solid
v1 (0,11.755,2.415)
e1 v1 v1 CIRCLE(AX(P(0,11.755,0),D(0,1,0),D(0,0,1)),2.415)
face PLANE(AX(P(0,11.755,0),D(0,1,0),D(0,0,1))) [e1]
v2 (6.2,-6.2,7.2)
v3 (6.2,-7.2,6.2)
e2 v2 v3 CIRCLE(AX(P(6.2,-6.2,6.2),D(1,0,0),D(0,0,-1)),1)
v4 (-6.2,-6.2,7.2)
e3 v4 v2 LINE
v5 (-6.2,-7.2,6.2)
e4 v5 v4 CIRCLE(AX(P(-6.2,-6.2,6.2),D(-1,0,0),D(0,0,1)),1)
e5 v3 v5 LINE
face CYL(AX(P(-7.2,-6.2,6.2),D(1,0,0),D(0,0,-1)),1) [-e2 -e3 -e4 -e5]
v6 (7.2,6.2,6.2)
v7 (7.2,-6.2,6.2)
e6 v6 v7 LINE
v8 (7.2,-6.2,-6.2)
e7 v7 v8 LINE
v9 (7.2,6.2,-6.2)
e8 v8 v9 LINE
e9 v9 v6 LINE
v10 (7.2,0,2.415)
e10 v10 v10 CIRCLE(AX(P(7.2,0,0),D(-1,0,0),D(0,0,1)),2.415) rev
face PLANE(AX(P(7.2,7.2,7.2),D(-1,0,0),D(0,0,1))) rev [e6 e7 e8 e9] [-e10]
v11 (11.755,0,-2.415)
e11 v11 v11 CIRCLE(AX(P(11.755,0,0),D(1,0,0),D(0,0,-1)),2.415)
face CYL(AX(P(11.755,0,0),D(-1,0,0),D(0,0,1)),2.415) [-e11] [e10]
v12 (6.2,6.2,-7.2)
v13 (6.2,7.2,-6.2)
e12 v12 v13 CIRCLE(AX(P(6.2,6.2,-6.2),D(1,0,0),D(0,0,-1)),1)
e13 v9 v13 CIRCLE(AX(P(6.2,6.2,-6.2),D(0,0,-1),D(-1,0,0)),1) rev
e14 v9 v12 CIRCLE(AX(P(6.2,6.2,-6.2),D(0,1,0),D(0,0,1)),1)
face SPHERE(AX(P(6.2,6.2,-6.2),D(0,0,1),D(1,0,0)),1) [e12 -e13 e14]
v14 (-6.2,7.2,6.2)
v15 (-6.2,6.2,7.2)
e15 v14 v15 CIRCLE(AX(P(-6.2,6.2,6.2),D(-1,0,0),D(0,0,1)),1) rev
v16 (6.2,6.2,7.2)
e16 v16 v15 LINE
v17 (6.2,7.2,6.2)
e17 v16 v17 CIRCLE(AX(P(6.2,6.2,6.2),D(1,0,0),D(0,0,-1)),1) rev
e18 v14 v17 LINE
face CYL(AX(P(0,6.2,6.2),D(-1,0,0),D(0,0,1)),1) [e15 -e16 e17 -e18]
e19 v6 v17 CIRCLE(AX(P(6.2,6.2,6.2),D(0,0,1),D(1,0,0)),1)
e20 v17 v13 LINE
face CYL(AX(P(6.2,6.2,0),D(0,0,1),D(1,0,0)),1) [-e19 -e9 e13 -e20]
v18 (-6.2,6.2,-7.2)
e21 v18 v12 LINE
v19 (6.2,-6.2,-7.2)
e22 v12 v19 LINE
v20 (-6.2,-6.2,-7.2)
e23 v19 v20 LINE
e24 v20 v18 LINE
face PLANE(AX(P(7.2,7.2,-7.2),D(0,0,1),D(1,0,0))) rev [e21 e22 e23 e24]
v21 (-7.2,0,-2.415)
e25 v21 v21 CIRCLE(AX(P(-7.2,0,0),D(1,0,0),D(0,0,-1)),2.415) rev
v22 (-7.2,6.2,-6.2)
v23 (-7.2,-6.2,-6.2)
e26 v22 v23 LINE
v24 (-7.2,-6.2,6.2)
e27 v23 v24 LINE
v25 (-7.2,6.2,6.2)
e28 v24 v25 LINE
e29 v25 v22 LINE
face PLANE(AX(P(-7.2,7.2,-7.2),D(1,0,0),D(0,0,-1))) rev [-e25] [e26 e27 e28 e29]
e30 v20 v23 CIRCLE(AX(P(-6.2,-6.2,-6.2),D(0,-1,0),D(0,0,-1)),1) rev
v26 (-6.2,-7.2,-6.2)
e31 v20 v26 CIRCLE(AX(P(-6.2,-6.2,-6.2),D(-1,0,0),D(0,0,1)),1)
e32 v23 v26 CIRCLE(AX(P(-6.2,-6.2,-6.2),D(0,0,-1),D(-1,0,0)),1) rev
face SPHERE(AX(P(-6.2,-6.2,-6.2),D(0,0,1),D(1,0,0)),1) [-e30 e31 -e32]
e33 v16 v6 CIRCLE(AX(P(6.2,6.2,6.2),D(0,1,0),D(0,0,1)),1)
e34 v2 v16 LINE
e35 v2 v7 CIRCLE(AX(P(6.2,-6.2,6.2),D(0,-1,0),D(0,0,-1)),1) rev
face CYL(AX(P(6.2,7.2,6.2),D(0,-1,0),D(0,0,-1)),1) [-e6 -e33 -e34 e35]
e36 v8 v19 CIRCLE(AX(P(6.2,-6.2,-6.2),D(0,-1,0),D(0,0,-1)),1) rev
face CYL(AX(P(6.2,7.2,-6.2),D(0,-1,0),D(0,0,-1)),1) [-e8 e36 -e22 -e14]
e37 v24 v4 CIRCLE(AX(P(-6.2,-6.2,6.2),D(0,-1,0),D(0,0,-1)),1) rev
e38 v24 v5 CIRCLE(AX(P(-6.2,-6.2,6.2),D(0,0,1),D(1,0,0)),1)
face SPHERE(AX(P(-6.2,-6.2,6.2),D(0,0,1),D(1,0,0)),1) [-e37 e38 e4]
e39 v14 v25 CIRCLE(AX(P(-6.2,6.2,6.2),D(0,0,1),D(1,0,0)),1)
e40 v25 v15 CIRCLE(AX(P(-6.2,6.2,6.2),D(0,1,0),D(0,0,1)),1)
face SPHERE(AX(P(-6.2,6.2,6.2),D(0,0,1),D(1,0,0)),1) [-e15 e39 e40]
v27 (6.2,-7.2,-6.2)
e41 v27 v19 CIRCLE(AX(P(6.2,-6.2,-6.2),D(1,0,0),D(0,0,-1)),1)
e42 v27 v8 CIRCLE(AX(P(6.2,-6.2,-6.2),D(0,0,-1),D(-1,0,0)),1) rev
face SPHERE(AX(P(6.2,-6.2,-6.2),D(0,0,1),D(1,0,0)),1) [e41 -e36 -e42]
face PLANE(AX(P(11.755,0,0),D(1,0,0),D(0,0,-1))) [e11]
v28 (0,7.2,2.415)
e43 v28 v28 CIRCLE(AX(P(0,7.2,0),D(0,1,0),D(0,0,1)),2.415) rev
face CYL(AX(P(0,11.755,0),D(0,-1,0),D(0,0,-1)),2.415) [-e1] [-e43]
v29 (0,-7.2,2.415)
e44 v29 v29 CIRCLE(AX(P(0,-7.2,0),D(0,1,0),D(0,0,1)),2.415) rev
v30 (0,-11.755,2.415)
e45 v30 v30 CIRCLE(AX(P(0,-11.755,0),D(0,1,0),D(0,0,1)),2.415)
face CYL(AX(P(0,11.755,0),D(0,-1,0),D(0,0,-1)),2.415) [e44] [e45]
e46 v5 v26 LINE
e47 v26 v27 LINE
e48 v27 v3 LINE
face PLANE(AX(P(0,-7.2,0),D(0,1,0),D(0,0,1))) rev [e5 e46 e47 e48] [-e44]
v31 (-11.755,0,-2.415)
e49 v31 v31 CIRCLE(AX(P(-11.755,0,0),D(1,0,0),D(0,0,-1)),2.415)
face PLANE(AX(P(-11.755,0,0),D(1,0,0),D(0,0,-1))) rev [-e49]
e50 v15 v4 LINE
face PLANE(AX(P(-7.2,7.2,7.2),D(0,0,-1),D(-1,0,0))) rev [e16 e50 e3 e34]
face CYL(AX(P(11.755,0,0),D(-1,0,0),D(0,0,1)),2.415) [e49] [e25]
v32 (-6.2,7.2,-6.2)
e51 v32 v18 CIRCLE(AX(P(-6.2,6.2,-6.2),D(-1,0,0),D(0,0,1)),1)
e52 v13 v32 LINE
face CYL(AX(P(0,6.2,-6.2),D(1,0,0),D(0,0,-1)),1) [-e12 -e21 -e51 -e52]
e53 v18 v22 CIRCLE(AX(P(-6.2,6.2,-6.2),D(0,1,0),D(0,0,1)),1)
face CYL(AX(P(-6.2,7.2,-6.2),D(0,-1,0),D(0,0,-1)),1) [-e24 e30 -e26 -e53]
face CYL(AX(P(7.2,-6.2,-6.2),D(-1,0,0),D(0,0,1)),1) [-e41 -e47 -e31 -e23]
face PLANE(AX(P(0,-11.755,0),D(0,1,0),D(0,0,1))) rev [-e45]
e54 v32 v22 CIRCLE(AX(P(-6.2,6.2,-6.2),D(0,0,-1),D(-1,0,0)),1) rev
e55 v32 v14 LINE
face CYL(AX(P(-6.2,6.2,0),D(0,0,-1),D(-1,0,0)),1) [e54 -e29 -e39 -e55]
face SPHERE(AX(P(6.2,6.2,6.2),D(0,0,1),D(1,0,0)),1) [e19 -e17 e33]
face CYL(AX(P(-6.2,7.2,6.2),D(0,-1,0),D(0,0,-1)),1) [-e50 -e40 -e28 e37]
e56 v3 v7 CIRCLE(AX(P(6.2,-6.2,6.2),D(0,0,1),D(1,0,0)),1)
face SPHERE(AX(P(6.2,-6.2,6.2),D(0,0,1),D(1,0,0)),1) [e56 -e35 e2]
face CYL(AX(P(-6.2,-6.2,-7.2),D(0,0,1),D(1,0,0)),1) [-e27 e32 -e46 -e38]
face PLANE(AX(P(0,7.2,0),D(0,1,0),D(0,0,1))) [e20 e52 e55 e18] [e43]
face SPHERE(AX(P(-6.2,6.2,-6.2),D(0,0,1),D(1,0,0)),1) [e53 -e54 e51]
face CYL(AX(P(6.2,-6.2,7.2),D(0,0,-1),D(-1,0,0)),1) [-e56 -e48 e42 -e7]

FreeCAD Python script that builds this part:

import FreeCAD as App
import Part
import Sketcher
Q = App.Units.Quantity


def edges_at(feature, points):
    """Names of the edges that pass closest to the given points."""
    edges = feature.Shape.Edges
    near = lambda p: min(range(len(edges)), key=lambda i: edges[i].distToShape(Part.Vertex(*p))[0])
    return sorted({f"Edge{near(p) + 1}" for p in points})

doc = App.newDocument("Part")
body = doc.addObject("PartDesign::Body", "Body")

# Sketch on XZ plane
sketch1 = body.newObject("Sketcher::SketchObject", "Sketch")
sketch1.AttachmentSupport = (doc.getObject("XZ_Plane"), [""])
sketch1.MapMode = "FlatFace"
sketch1.addGeometry([
    Part.LineSegment(App.Vector(-7.2, -7.2, 0), App.Vector(-7.2, 7.2, 0)),
    Part.LineSegment(App.Vector(-7.2, 7.2, 0), App.Vector(7.2, 7.2, 0)),
    Part.LineSegment(App.Vector(7.2, 7.2, 0), App.Vector(7.2, -7.2, 0)),
    Part.LineSegment(App.Vector(7.2, -7.2, 0), App.Vector(-7.2, -7.2, 0)),
], False)
sketch1.addConstraint([
    Sketcher.Constraint("Coincident", 0, 2, 1, 1),
    Sketcher.Constraint("Coincident", 1, 2, 2, 1),
    Sketcher.Constraint("Coincident", 2, 2, 3, 1),
    Sketcher.Constraint("Coincident", 3, 2, 0, 1),
    Sketcher.Constraint("Vertical", 0),
    Sketcher.Constraint("Horizontal", 1),
    Sketcher.Constraint("Vertical", 2),
    Sketcher.Constraint("Horizontal", 3),
    Sketcher.Constraint("Symmetric", 0, 2, 2, 2, -1, 1),
    Sketcher.Constraint("Equal", 3, 0),
    Sketcher.Constraint("DistanceX", 1, 1, 1, 2, Q("14.4 mm")),
])
pad1 = body.newObject("PartDesign::Pad", "Pad")
pad1.Profile = sketch1
pad1.Length = 14.4
pad1.Midplane = True

# Sketch on YZ plane
sketch2 = body.newObject("Sketcher::SketchObject", "Sketch001")
sketch2.AttachmentSupport = (doc.getObject("YZ_Plane"), [""])
sketch2.MapMode = "FlatFace"
sketch2.addGeometry(Part.Circle(App.Vector(0, 0, 0), App.Vector(0, 0, 1), 2.415), False)
sketch2.addConstraint([
    Sketcher.Constraint("Coincident", 0, 3, -1, 1),
    Sketcher.Constraint("Diameter", 0, Q("4.83 mm")),
])
pad2 = body.newObject("PartDesign::Pad", "Pad001")
pad2.Profile = sketch2
pad2.Length = 23.51
pad2.Midplane = True

# Sketch on XZ plane
sketch3 = body.newObject("Sketcher::SketchObject", "Sketch002")
sketch3.AttachmentSupport = (doc.getObject("XZ_Plane"), [""])
sketch3.MapMode = "FlatFace"
sketch3.addGeometry(Part.Circle(App.Vector(0, 0, 0), App.Vector(0, 0, 1), 2.415), False)
sketch3.addConstraint([
    Sketcher.Constraint("Coincident", 0, 3, -1, 1),
    Sketcher.Constraint("Diameter", 0, Q("4.83 mm")),
])
pad3 = body.newObject("PartDesign::Pad", "Pad002")
pad3.Profile = sketch3
pad3.Length = 23.51
pad3.Midplane = True
doc.recompute()

fillet = body.newObject("PartDesign::Fillet", "Fillet")
fillet.Base = (pad3, edges_at(pad3, [
    (-7.2, 7.2, 0),
    (0, 7.2, 7.2),
    (7.2, 7.2, 0),
    (0, -7.2, 7.2),
    (-7.2, -7.2, 0),
    (0, -7.2, -7.2),
    (7.2, -7.2, 0),
    (0, 7.2, -7.2),
    (7.2, 0, 7.2),
    (-7.2, 0, 7.2),
    (-7.2, 0, -7.2),
    (7.2, 0, -7.2),
]))
fillet.Radius = 1

doc.recompute()
